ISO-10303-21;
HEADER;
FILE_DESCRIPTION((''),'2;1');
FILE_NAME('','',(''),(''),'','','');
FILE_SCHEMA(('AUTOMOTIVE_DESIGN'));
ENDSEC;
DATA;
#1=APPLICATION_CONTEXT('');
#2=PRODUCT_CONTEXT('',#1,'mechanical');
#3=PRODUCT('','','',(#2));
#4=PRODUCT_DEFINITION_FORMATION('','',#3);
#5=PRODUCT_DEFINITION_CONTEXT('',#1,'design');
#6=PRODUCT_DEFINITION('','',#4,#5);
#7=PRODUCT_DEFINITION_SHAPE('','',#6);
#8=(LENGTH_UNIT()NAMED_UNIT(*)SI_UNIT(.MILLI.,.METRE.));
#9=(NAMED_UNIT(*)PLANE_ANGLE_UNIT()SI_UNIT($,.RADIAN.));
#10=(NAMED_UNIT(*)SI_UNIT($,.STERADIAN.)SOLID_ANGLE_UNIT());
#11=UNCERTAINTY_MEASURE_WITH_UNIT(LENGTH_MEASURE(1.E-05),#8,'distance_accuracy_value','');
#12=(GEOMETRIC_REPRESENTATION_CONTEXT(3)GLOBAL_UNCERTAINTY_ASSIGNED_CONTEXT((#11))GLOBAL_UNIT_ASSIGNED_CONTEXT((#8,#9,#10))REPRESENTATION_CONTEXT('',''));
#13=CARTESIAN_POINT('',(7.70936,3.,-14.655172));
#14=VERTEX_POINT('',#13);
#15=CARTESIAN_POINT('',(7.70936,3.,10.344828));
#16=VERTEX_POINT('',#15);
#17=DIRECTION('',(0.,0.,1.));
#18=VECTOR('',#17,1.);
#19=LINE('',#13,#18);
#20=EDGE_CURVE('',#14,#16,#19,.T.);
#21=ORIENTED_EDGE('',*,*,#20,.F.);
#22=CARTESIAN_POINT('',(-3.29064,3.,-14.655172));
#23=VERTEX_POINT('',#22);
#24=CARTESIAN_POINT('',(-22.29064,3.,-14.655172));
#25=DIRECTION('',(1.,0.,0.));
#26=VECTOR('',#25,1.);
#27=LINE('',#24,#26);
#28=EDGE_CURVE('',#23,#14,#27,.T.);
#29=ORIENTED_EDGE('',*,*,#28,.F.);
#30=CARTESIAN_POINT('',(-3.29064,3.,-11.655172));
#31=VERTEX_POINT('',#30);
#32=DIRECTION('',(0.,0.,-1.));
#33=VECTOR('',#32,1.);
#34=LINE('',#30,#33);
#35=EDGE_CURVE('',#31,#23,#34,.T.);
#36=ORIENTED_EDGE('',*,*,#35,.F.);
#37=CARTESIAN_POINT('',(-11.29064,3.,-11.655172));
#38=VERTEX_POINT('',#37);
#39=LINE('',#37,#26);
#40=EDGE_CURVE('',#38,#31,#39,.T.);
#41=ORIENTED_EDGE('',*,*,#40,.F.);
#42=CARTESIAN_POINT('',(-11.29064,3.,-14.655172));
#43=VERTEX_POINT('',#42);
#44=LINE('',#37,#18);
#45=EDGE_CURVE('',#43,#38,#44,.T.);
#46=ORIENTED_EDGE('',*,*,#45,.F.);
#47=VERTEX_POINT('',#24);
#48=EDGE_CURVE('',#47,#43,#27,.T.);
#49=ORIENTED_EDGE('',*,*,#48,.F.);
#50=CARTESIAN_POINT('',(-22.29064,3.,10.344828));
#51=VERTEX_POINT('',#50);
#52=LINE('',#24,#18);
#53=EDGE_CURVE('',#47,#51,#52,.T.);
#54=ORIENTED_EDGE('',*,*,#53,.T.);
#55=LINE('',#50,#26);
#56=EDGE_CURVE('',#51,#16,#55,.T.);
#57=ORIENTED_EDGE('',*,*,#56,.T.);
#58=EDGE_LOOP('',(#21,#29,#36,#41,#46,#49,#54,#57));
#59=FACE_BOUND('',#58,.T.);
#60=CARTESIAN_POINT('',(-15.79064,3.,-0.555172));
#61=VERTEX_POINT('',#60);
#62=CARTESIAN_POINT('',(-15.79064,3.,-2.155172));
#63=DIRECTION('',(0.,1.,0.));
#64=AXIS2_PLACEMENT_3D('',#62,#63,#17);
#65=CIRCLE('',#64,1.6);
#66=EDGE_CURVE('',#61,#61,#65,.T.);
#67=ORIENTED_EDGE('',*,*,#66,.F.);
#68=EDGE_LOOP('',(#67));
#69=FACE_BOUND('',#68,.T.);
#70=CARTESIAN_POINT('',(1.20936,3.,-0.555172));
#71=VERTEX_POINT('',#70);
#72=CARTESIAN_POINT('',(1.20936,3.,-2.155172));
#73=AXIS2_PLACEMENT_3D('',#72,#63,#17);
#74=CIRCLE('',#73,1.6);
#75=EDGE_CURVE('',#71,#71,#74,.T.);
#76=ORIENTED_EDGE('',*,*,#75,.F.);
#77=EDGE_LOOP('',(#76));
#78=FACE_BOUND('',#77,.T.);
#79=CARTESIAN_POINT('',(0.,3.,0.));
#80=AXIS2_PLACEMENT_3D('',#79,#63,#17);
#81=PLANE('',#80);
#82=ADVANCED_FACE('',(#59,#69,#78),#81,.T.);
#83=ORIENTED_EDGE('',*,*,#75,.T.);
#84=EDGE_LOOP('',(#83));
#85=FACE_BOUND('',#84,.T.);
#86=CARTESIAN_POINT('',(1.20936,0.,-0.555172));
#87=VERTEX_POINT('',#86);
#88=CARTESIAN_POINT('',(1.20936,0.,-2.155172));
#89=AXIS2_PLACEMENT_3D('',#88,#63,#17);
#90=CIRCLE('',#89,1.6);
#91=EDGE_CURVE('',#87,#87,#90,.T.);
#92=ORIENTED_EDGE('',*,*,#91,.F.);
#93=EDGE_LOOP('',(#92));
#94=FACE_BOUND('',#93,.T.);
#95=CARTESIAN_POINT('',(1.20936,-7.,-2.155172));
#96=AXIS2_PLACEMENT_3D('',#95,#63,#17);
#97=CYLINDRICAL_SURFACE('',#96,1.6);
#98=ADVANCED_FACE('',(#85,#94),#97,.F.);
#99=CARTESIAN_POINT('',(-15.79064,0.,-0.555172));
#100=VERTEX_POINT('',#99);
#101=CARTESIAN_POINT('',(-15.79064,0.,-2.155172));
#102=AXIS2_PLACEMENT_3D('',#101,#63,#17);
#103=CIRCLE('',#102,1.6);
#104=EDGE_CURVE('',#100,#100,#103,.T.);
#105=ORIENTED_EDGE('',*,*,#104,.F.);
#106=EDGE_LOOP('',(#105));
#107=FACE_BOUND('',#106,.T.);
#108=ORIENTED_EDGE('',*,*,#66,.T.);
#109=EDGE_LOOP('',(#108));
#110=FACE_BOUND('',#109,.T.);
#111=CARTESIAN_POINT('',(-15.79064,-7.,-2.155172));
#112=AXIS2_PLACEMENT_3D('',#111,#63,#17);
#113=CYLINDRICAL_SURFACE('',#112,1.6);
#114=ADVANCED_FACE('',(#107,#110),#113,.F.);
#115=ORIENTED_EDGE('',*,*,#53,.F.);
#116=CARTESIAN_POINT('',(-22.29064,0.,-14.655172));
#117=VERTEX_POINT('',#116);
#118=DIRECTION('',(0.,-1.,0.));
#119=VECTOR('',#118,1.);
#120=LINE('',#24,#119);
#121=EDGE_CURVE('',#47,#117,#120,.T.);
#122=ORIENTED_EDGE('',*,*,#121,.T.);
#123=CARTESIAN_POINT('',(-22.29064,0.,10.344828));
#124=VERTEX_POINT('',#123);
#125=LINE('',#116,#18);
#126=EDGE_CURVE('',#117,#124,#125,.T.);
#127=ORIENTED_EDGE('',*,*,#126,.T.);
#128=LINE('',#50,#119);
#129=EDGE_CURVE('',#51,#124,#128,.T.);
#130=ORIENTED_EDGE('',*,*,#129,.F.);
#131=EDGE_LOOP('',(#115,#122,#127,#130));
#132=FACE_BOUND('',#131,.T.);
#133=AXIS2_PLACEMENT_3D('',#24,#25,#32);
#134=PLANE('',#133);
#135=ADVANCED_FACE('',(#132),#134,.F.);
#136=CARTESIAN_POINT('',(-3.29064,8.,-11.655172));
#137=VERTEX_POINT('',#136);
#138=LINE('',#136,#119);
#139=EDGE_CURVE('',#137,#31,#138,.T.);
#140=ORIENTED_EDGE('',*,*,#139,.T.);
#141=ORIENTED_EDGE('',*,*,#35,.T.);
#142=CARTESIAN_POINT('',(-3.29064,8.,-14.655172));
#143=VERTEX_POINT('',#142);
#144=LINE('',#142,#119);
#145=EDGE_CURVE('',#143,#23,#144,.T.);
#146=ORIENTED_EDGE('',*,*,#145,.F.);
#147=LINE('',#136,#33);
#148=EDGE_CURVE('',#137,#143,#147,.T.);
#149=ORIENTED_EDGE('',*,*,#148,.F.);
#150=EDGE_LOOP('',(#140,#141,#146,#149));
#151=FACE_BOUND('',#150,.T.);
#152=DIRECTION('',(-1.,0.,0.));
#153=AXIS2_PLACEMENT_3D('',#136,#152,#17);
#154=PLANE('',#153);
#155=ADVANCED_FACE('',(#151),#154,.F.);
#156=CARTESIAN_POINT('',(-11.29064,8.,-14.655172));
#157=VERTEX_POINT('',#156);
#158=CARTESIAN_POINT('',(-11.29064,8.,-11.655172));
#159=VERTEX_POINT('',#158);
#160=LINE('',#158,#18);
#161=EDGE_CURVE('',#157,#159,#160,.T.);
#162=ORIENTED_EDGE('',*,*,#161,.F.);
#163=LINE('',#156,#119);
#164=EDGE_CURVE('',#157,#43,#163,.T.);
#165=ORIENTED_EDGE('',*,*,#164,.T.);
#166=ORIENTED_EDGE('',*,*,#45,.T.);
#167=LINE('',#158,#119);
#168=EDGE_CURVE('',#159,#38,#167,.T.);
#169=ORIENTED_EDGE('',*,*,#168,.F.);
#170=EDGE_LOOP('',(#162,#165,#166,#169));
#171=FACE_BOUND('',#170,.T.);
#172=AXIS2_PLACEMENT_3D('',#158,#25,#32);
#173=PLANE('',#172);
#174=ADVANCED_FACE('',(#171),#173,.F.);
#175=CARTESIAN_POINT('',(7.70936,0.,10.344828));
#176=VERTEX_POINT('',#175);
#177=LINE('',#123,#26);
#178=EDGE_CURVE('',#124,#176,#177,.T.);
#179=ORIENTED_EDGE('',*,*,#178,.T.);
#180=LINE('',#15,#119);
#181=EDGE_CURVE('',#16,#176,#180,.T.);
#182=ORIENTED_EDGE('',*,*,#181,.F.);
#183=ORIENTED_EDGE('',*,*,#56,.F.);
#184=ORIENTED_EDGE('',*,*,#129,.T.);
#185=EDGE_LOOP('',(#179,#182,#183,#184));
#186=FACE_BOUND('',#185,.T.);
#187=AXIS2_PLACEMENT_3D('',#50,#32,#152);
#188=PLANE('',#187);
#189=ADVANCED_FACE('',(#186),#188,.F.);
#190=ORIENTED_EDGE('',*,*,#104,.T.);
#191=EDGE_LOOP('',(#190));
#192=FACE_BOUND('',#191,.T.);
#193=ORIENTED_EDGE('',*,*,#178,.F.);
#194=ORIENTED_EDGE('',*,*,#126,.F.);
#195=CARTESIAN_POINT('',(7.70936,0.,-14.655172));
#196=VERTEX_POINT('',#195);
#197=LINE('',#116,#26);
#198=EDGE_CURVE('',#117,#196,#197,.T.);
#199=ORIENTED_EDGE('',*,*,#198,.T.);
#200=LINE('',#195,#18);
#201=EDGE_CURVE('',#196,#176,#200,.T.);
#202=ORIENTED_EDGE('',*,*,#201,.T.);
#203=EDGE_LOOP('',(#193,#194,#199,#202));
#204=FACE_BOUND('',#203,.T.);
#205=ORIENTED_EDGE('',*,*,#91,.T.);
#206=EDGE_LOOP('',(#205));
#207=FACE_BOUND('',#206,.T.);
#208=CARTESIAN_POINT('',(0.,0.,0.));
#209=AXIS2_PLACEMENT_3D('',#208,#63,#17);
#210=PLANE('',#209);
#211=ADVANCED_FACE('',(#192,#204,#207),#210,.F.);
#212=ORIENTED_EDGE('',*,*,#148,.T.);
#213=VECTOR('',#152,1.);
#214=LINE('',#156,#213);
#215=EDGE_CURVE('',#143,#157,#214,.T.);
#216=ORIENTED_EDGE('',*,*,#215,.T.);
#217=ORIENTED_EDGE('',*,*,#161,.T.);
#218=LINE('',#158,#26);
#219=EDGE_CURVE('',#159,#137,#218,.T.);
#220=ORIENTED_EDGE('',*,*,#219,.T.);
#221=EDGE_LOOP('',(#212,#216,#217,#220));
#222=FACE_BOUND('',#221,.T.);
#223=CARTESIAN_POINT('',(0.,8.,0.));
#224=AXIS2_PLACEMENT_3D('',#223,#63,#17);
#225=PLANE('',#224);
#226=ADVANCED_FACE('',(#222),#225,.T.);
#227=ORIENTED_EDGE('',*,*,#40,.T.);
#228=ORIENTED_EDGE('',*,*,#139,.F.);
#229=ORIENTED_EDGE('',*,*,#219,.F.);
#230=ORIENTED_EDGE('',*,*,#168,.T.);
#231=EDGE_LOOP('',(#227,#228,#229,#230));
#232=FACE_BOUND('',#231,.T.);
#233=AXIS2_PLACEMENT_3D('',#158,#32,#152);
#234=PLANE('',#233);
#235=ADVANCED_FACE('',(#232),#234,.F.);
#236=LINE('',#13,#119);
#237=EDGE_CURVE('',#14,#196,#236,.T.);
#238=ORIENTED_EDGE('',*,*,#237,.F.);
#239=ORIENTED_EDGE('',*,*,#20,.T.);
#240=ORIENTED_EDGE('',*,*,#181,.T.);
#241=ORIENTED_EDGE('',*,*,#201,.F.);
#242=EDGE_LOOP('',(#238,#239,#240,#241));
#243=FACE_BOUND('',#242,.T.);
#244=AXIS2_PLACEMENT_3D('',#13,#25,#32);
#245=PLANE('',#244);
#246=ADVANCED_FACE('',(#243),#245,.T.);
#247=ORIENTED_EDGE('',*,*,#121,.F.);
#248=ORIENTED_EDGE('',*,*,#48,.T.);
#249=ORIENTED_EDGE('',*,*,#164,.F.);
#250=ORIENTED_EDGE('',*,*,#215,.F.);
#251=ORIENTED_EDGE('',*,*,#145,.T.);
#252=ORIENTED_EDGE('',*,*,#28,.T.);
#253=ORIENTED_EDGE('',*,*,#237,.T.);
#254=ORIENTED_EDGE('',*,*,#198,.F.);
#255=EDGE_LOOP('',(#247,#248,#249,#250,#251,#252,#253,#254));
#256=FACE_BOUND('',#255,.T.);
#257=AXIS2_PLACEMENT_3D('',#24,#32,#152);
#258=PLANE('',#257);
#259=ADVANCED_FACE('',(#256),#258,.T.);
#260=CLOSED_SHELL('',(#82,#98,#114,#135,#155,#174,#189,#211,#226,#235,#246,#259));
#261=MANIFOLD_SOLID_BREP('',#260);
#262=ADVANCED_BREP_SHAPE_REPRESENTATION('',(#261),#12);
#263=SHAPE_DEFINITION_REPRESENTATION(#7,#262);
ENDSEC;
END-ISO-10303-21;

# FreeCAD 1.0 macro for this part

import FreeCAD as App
import Part
import Sketcher
from FreeCAD import Vector
Q = App.Units.Quantity

doc = App.newDocument("Part")
body = doc.addObject("PartDesign::Body", "Body")

# Sketch on XZ plane
sketch1 = doc.addObject("Sketcher::SketchObject", "Sketch")
body.addObject(sketch1)
sketch1.AttachmentSupport = (doc.XZ_Plane, [""])
sketch1.MapMode = "FlatFace"
sketch1.addGeometry(Part.LineSegment(Vector(-22, -15, 0), Vector(-22, 10, 0)), False)
sketch1.addGeometry(Part.LineSegment(Vector(-22, 10, 0), Vector(8, 10, 0)), False)
sketch1.addGeometry(Part.LineSegment(Vector(8, 10, 0), Vector(8, -15, 0)), False)
sketch1.addGeometry(Part.LineSegment(Vector(8, -15, 0), Vector(-22, -15, 0)), False)
sketch1.addConstraint(Sketcher.Constraint("Coincident", 0, 2, 1, 1))
sketch1.addConstraint(Sketcher.Constraint("Coincident", 1, 2, 2, 1))
sketch1.addConstraint(Sketcher.Constraint("Coincident", 2, 2, 3, 1))
sketch1.addConstraint(Sketcher.Constraint("Coincident", 3, 2, 0, 1))
sketch1.addConstraint(Sketcher.Constraint("Vertical", 0))
sketch1.addConstraint(Sketcher.Constraint("Horizontal", 1))
sketch1.addConstraint(Sketcher.Constraint("Vertical", 2))
sketch1.addConstraint(Sketcher.Constraint("Horizontal", 3))
sketch1.addConstraint(Sketcher.Constraint("DistanceX", 1, 1, 1, 2, Q("30 mm")))
sketch1.addConstraint(Sketcher.Constraint("DistanceY", 0, 1, 0, 2, Q("25 mm")))
sketch1.addConstraint(Sketcher.Constraint("DistanceX", 0, 2, -1, 1, Q("22.29064 mm")))
sketch1.addConstraint(Sketcher.Constraint("DistanceY", -1, 1, 0, 2, Q("10.344828 mm")))
pad1 = doc.addObject("PartDesign::Pad", "Pad")
body.addObject(pad1)
pad1.Profile = sketch1
pad1.Length = 3
pad1.Reversed = True

# Sketch on XZ plane
sketch2 = doc.addObject("Sketcher::SketchObject", "Sketch001")
body.addObject(sketch2)
sketch2.AttachmentSupport = (doc.XZ_Plane, [""])
sketch2.MapMode = "FlatFace"
sketch2.AttachmentOffset = App.Placement(Vector(0, 0, -3), App.Rotation())
sketch2.addGeometry(Part.Circle(Vector(-15.8, -2.2, 0), Vector(0, 0, 1), 1.6), False)
sketch2.addGeometry(Part.Circle(Vector(1.2, -2.2, 0), Vector(0, 0, 1), 1.6), False)
sketch2.addConstraint(Sketcher.Constraint("Equal", 0, 1))
sketch2.addConstraint(Sketcher.Constraint("Horizontal", 0, 3, 1, 3))
sketch2.addConstraint(Sketcher.Constraint("Diameter", 0, Q("3.2 mm")))
sketch2.addConstraint(Sketcher.Constraint("DistanceX", 0, 3, 1, 3, Q("17 mm")))
sketch2.addConstraint(Sketcher.Constraint("DistanceX", 0, 3, -1, 1, Q("15.79064 mm")))
sketch2.addConstraint(Sketcher.Constraint("DistanceY", 0, 3, -1, 1, Q("2.155172 mm")))
pocket1 = doc.addObject("PartDesign::Pocket", "Pocket")
body.addObject(pocket1)
pocket1.Profile = sketch2
pocket1.Length = 10
pocket1.Reversed = True

# Sketch on XZ plane
sketch3 = doc.addObject("Sketcher::SketchObject", "Sketch002")
body.addObject(sketch3)
sketch3.AttachmentSupport = (doc.XZ_Plane, [""])
sketch3.MapMode = "FlatFace"
sketch3.AttachmentOffset = App.Placement(Vector(0, 0, -3), App.Rotation())
sketch3.addGeometry(Part.LineSegment(Vector(-11.3, -14.7, 0), Vector(-11.3, -11.7, 0)), False)
sketch3.addGeometry(Part.LineSegment(Vector(-11.3, -11.7, 0), Vector(-3.3, -11.7, 0)), False)
sketch3.addGeometry(Part.LineSegment(Vector(-3.3, -11.7, 0), Vector(-3.3, -14.7, 0)), False)
sketch3.addGeometry(Part.LineSegment(Vector(-3.3, -14.7, 0), Vector(-11.3, -14.7, 0)), False)
sketch3.addConstraint(Sketcher.Constraint("Coincident", 0, 2, 1, 1))
sketch3.addConstraint(Sketcher.Constraint("Coincident", 1, 2, 2, 1))
sketch3.addConstraint(Sketcher.Constraint("Coincident", 2, 2, 3, 1))
sketch3.addConstraint(Sketcher.Constraint("Coincident", 3, 2, 0, 1))
sketch3.addConstraint(Sketcher.Constraint("Vertical", 0))
sketch3.addConstraint(Sketcher.Constraint("Horizontal", 1))
sketch3.addConstraint(Sketcher.Constraint("Vertical", 2))
sketch3.addConstraint(Sketcher.Constraint("Horizontal", 3))
sketch3.addConstraint(Sketcher.Constraint("DistanceX", 1, 1, 1, 2, Q("8 mm")))
sketch3.addConstraint(Sketcher.Constraint("DistanceY", 0, 1, 0, 2, Q("3 mm")))
sketch3.addConstraint(Sketcher.Constraint("DistanceX", 0, 2, -1, 1, Q("11.29064 mm")))
sketch3.addConstraint(Sketcher.Constraint("DistanceY", 0, 2, -1, 1, Q("11.655172 mm")))
pad2 = doc.addObject("PartDesign::Pad", "Pad001")
body.addObject(pad2)
pad2.Profile = sketch3
pad2.Length = 5
pad2.Reversed = True

doc.recompute()
